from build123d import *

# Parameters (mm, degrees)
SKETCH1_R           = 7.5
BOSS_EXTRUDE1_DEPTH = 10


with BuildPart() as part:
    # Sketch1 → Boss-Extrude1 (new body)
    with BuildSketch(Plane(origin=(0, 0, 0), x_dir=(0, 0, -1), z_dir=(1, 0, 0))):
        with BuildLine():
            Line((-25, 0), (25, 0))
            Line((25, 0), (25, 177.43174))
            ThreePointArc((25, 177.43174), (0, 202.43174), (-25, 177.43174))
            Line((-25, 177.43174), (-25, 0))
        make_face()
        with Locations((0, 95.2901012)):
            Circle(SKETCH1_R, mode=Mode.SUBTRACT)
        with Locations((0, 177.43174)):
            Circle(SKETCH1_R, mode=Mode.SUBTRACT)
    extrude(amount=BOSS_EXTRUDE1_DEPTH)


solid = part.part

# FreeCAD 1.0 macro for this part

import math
import FreeCAD as App
import Part
import Sketcher

V = App.Vector
Q = App.Units.Quantity

doc = App.newDocument("Part")
body = doc.addObject("PartDesign::Body", "Body")

sketch1 = doc.addObject("Sketcher::SketchObject", "Sketch")
body.addObject(sketch1)
sketch1.AttachmentSupport = (doc.YZ_Plane, [""])
sketch1.MapMode = "FlatFace"
sketch1.addGeometry(Part.LineSegment(V(0, 25, 0), V(0, -25, 0)), False)
sketch1.addGeometry(Part.LineSegment(V(0, -25, 0), V(177.43174, -25, 0)), False)
sketch1.addGeometry(Part.ArcOfCircle(Part.Circle(V(177.43174, 0, 0), V(0, 0, 1), 25), math.radians(-90), math.radians(90)), False)
sketch1.addGeometry(Part.LineSegment(V(177.43174, 25, 0), V(0, 25, 0)), False)
sketch1.addGeometry(Part.Circle(V(95.290101, 0, 0), V(0, 0, 1), 7.5), False)
sketch1.addGeometry(Part.Circle(V(177.43174, 0, 0), V(0, 0, 1), 7.5), False)
sketch1.addConstraint(Sketcher.Constraint("Coincident", 0, 2, 1, 1))
sketch1.addConstraint(Sketcher.Constraint("Tangent", 1, 2, 2, 1))
sketch1.addConstraint(Sketcher.Constraint("Tangent", 2, 2, 3, 1))
sketch1.addConstraint(Sketcher.Constraint("Coincident", 3, 2, 0, 1))
sketch1.addConstraint(Sketcher.Constraint("Vertical", 0))
sketch1.addConstraint(Sketcher.Constraint("Horizontal", 1))
sketch1.addConstraint(Sketcher.Constraint("Horizontal", 3))
sketch1.addConstraint(Sketcher.Constraint("Coincident", 5, 3, 2, 3))
sketch1.addConstraint(Sketcher.Constraint("Equal", 4, 5))
sketch1.addConstraint(Sketcher.Constraint("Symmetric", 0, 2, 3, 2, -1, 1))
sketch1.addConstraint(Sketcher.Constraint("PointOnObject", 4, 3, -1))
sketch1.addConstraint(Sketcher.Constraint("Diameter", 4, Q("15 mm")))
sketch1.addConstraint(Sketcher.Constraint("Radius", 2, Q("25 mm")))
sketch1.addConstraint(Sketcher.Constraint("DistanceX", 1, 1, 1, 2, Q("177.43174 mm")))
sketch1.addConstraint(Sketcher.Constraint("DistanceX", -1, 1, 4, 3, Q("95.290101 mm")))
pad1 = doc.addObject("PartDesign::Pad", "Pad")
body.addObject(pad1)
pad1.Profile = sketch1
pad1.Length = 10

doc.recompute()
